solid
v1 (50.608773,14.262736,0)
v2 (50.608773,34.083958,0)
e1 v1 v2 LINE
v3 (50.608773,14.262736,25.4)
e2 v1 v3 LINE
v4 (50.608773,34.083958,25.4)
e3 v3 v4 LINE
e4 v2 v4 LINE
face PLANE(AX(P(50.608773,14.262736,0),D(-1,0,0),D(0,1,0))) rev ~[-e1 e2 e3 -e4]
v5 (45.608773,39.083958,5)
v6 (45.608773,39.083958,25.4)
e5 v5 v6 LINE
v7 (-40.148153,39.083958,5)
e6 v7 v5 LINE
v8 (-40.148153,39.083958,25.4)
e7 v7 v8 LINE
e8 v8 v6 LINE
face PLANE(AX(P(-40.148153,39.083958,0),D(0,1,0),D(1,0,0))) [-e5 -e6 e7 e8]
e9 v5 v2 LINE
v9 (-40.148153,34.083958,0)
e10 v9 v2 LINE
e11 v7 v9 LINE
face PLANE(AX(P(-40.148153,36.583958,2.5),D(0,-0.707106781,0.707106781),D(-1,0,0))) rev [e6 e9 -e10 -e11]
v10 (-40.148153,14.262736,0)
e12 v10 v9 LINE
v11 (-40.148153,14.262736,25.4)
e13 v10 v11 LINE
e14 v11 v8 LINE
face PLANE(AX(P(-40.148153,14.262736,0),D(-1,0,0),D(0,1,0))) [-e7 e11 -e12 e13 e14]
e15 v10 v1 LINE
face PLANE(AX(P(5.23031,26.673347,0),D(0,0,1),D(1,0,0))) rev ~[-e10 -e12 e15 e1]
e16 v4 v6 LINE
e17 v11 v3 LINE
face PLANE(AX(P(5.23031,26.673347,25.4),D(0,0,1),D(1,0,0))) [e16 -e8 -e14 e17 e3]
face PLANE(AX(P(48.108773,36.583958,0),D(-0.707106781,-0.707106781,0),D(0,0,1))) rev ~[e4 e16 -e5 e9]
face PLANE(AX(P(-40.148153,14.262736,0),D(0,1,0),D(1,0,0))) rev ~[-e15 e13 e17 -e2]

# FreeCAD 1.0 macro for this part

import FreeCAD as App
import Part
import Sketcher


def edges_at(feature, points):
    """Names of the edges that pass closest to the given points."""
    edges = feature.Shape.Edges
    near = lambda p: min(range(len(edges)), key=lambda i: edges[i].distToShape(Part.Vertex(*p))[0])
    return sorted({f"Edge{near(p) + 1}" for p in points})


def add_polygon(sketch, points):
    """Adds a closed chain of lines whose ends are joined by coincident constraints."""
    first, n = sketch.GeometryCount, len(points)
    for a, b in zip(points, points[1:] + points[:1]):
        sketch.addGeometry(Part.LineSegment(App.Vector(*a, 0), App.Vector(*b, 0)), False)
    for i in range(n):
        sketch.addConstraint(Sketcher.Constraint("Coincident", first + i, 2, first + (i + 1) % n, 1))

doc = App.newDocument("Part")
body = doc.addObject("PartDesign::Body", "Body")

sketch1 = body.newObject("Sketcher::SketchObject", "Sketch")
sketch1.AttachmentSupport = (doc.getObject("XY_Plane"), [""])
sketch1.MapMode = "FlatFace"
add_polygon(sketch1, [(-40.148153, 39.083958), (-40.148153, 14.262736), (50.608773, 14.262736), (50.608773, 39.083958)])
sketch1.addConstraint([
    Sketcher.Constraint("Vertical", 0),
    Sketcher.Constraint("Horizontal", 1),
    Sketcher.Constraint("Vertical", 2),
    Sketcher.Constraint("Horizontal", 3),
    Sketcher.Constraint("DistanceX", 1, 1, 1, 2, 90.756927),
    Sketcher.Constraint("DistanceY", 0, 2, 0, 1, 24.821222),
    Sketcher.Constraint("DistanceY", -1, 1, 2, 2, 39.083958),
    Sketcher.Constraint("DistanceX", 0, 2, -1, 1, 40.148153),
])
pad1 = body.newObject("PartDesign::Pad", "Pad")
pad1.Profile = sketch1
pad1.Length = 25.4
doc.recompute()

chamfer = body.newObject("PartDesign::Chamfer", "Chamfer")
chamfer.Base = (pad1, edges_at(pad1, [(5.23, 39.084, 0), (50.609, 39.084, 12.7)]))
chamfer.Size = 5

doc.recompute()
